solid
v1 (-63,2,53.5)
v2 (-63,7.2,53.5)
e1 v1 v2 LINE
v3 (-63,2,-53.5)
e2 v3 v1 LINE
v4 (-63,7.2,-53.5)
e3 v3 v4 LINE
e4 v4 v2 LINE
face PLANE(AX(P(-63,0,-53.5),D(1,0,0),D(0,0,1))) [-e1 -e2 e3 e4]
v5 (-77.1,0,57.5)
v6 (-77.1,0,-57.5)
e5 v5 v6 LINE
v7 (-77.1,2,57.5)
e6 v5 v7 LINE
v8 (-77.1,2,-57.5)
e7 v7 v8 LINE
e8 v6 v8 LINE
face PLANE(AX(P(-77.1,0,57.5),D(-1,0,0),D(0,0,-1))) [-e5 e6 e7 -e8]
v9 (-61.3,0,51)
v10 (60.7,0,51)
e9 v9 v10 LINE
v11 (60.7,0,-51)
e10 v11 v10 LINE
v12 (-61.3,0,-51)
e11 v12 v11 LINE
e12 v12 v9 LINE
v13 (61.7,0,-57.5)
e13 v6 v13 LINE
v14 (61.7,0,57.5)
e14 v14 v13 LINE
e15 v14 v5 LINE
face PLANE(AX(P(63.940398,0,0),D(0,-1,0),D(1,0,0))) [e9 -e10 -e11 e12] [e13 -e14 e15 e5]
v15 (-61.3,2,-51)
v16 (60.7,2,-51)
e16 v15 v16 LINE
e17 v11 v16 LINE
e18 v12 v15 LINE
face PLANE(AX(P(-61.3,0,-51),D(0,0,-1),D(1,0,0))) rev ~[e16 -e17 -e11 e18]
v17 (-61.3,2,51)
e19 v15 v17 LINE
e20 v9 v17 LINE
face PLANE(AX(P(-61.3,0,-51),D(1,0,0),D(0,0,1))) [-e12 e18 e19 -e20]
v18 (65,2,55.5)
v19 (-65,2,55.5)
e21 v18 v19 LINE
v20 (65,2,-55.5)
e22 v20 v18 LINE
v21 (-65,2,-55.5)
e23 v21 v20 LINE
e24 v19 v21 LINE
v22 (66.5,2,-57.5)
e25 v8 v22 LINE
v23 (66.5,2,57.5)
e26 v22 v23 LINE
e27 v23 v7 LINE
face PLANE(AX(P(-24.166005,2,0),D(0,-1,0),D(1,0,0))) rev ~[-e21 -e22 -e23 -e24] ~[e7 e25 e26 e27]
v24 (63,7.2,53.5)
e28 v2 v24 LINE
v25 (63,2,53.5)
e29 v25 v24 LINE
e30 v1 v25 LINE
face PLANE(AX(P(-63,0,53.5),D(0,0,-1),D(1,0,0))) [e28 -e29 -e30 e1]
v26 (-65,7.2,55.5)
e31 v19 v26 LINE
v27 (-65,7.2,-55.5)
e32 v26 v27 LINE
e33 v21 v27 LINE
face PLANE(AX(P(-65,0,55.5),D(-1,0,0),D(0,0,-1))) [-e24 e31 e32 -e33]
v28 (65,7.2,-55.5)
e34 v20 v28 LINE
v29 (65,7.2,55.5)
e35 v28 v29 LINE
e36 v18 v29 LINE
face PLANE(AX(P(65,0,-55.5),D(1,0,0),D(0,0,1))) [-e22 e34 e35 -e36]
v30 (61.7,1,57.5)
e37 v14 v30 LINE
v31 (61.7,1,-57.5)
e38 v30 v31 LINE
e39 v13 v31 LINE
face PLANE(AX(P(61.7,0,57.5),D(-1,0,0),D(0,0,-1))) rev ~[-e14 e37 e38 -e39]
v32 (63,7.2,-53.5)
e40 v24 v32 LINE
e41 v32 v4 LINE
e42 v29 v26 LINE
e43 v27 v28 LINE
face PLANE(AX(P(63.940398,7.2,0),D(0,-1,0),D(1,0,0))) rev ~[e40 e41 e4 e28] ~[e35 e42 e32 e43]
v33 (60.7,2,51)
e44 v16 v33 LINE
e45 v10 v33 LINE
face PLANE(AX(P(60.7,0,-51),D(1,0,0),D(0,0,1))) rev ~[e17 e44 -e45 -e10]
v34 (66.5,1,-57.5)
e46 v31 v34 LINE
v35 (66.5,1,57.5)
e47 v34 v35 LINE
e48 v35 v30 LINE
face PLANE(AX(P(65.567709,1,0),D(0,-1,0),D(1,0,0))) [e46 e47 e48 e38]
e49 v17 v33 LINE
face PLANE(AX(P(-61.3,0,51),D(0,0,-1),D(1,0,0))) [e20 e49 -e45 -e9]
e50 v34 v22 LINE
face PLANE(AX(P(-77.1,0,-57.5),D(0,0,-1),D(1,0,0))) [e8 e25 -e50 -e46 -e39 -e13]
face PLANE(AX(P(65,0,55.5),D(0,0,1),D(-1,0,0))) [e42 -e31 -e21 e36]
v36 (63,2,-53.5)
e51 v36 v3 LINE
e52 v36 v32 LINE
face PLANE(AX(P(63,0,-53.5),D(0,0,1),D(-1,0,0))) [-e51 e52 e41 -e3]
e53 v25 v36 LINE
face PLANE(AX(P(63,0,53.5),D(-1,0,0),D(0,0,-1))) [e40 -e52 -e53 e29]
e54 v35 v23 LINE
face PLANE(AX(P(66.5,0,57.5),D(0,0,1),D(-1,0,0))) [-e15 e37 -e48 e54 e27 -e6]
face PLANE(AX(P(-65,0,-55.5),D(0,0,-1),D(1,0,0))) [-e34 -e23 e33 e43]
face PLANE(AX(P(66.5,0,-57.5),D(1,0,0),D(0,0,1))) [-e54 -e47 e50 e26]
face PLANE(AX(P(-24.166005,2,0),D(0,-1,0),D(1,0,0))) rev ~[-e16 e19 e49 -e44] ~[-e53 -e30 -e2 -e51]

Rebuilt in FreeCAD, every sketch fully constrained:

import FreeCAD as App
import Part
import Sketcher

V = App.Vector

doc = App.newDocument("Part")
body = doc.addObject("PartDesign::Body", "Body")

sketch1 = body.newObject("Sketcher::SketchObject", "Sketch")
sketch1.AttachmentSupport = (doc.getObject("XZ_Plane"), [""])
sketch1.MapMode = "FlatFace"
sketch1.addGeometry(Part.LineSegment(V(-77, -58, 0), V(66, -58, 0)), False)
sketch1.addGeometry(Part.LineSegment(V(66, -58, 0), V(66, 58, 0)), False)
sketch1.addGeometry(Part.LineSegment(V(66, 58, 0), V(-77, 58, 0)), False)
sketch1.addGeometry(Part.LineSegment(V(-77, 58, 0), V(-77, -58, 0)), False)
sketch1.addGeometry(Part.LineSegment(V(61, -51, 0), V(-61, -51, 0)), False)
sketch1.addGeometry(Part.LineSegment(V(-61, -51, 0), V(-61, 51, 0)), False)
sketch1.addGeometry(Part.LineSegment(V(-61, 51, 0), V(61, 51, 0)), False)
sketch1.addGeometry(Part.LineSegment(V(61, 51, 0), V(61, -51, 0)), False)
sketch1.addConstraint(Sketcher.Constraint("Coincident", 0, 2, 1, 1))
sketch1.addConstraint(Sketcher.Constraint("Coincident", 1, 2, 2, 1))
sketch1.addConstraint(Sketcher.Constraint("Coincident", 2, 2, 3, 1))
sketch1.addConstraint(Sketcher.Constraint("Coincident", 3, 2, 0, 1))
sketch1.addConstraint(Sketcher.Constraint("Coincident", 4, 2, 5, 1))
sketch1.addConstraint(Sketcher.Constraint("Coincident", 5, 2, 6, 1))
sketch1.addConstraint(Sketcher.Constraint("Coincident", 6, 2, 7, 1))
sketch1.addConstraint(Sketcher.Constraint("Coincident", 7, 2, 4, 1))
sketch1.addConstraint(Sketcher.Constraint("Horizontal", 0))
sketch1.addConstraint(Sketcher.Constraint("Vertical", 1))
sketch1.addConstraint(Sketcher.Constraint("Horizontal", 2))
sketch1.addConstraint(Sketcher.Constraint("Vertical", 3))
sketch1.addConstraint(Sketcher.Constraint("Horizontal", 4))
sketch1.addConstraint(Sketcher.Constraint("Vertical", 5))
sketch1.addConstraint(Sketcher.Constraint("Horizontal", 6))
sketch1.addConstraint(Sketcher.Constraint("Vertical", 7))
sketch1.addConstraint(Sketcher.Constraint("DistanceX", 4, 2, 4, 1, 122.0))
sketch1.addConstraint(Sketcher.Constraint("DistanceY", 1, 1, 1, 2, 115.0))
sketch1.addConstraint(Sketcher.Constraint("DistanceY", 5, 1, 5, 2, 102.0))
sketch1.addConstraint(Sketcher.Constraint("DistanceX", 0, 1, 0, 2, 143.6))
sketch1.addConstraint(Sketcher.Constraint("DistanceY", 4, 2, -1, 1, 51.0))
sketch1.addConstraint(Sketcher.Constraint("DistanceX", -1, 1, 0, 2, 66.5))
sketch1.addConstraint(Sketcher.Constraint("DistanceY", 0, 2, -1, 1, 57.5))
sketch1.addConstraint(Sketcher.Constraint("DistanceX", 4, 2, -1, 1, 61.3))
pad1 = body.newObject("PartDesign::Pad", "Pad")
pad1.Profile = sketch1
pad1.Length = 2
pad1.Reversed = True

sketch2 = body.newObject("Sketcher::SketchObject", "Sketch001")
sketch2.AttachmentSupport = (doc.getObject("XZ_Plane"), [""])
sketch2.MapMode = "FlatFace"
sketch2.addGeometry(Part.LineSegment(V(65, -56, 0), V(65, 56, 0)), False)
sketch2.addGeometry(Part.LineSegment(V(65, 56, 0), V(-65, 56, 0)), False)
sketch2.addGeometry(Part.LineSegment(V(-65, 56, 0), V(-65, -56, 0)), False)
sketch2.addGeometry(Part.LineSegment(V(-65, -56, 0), V(65, -56, 0)), False)
sketch2.addGeometry(Part.LineSegment(V(63, 54, 0), V(63, -54, 0)), False)
sketch2.addGeometry(Part.LineSegment(V(63, -54, 0), V(-63, -54, 0)), False)
sketch2.addGeometry(Part.LineSegment(V(-63, -54, 0), V(-63, 54, 0)), False)
sketch2.addGeometry(Part.LineSegment(V(-63, 54, 0), V(63, 54, 0)), False)
sketch2.addConstraint(Sketcher.Constraint("Coincident", 0, 2, 1, 1))
sketch2.addConstraint(Sketcher.Constraint("Coincident", 1, 2, 2, 1))
sketch2.addConstraint(Sketcher.Constraint("Coincident", 2, 2, 3, 1))
sketch2.addConstraint(Sketcher.Constraint("Coincident", 3, 2, 0, 1))
sketch2.addConstraint(Sketcher.Constraint("Coincident", 4, 2, 5, 1))
sketch2.addConstraint(Sketcher.Constraint("Coincident", 5, 2, 6, 1))
sketch2.addConstraint(Sketcher.Constraint("Coincident", 6, 2, 7, 1))
sketch2.addConstraint(Sketcher.Constraint("Coincident", 7, 2, 4, 1))
sketch2.addConstraint(Sketcher.Constraint("Vertical", 0))
sketch2.addConstraint(Sketcher.Constraint("Horizontal", 1))
sketch2.addConstraint(Sketcher.Constraint("Vertical", 2))
sketch2.addConstraint(Sketcher.Constraint("Horizontal", 3))
sketch2.addConstraint(Sketcher.Constraint("Vertical", 4))
sketch2.addConstraint(Sketcher.Constraint("Horizontal", 5))
sketch2.addConstraint(Sketcher.Constraint("Vertical", 6))
sketch2.addConstraint(Sketcher.Constraint("Horizontal", 7))
sketch2.addConstraint(Sketcher.Constraint("Symmetric", 0, 2, 2, 2, -1, 1))
sketch2.addConstraint(Sketcher.Constraint("Symmetric", 4, 2, 6, 2, -1, 1))
sketch2.addConstraint(Sketcher.Constraint("DistanceX", 1, 2, 1, 1, 130.0))
sketch2.addConstraint(Sketcher.Constraint("DistanceX", 5, 2, 5, 1, 126.0))
sketch2.addConstraint(Sketcher.Constraint("DistanceY", 0, 1, 0, 2, 111.0))
sketch2.addConstraint(Sketcher.Constraint("DistanceY", 4, 2, 4, 1, 107.0))
pad2 = body.newObject("PartDesign::Pad", "Pad001")
pad2.Profile = sketch2
pad2.Length = 7.2
pad2.Reversed = True

sketch3 = body.newObject("Sketcher::SketchObject", "Sketch002")
sketch3.AttachmentSupport = (doc.getObject("XZ_Plane"), [""])
sketch3.MapMode = "FlatFace"
sketch3.addGeometry(Part.LineSegment(V(61.7, -57.5, 0), V(66.5, -57.5, 0)), False)
sketch3.addGeometry(Part.LineSegment(V(66.5, -57.5, 0), V(66.5, 57.5, 0)), False)
sketch3.addGeometry(Part.LineSegment(V(66.5, 57.5, 0), V(61.7, 57.5, 0)), False)
sketch3.addGeometry(Part.LineSegment(V(61.7, 57.5, 0), V(61.7, -57.5, 0)), False)
sketch3.addConstraint(Sketcher.Constraint("Coincident", 0, 2, 1, 1))
sketch3.addConstraint(Sketcher.Constraint("Coincident", 1, 2, 2, 1))
sketch3.addConstraint(Sketcher.Constraint("Coincident", 2, 2, 3, 1))
sketch3.addConstraint(Sketcher.Constraint("Coincident", 3, 2, 0, 1))
sketch3.addConstraint(Sketcher.Constraint("Horizontal", 0))
sketch3.addConstraint(Sketcher.Constraint("Vertical", 1))
sketch3.addConstraint(Sketcher.Constraint("Horizontal", 2))
sketch3.addConstraint(Sketcher.Constraint("Vertical", 3))
sketch3.addConstraint(Sketcher.Constraint("DistanceY", 1, 1, 1, 2, 115.0))
sketch3.addConstraint(Sketcher.Constraint("DistanceX", 0, 1, 0, 2, 4.8))
sketch3.addConstraint(Sketcher.Constraint("DistanceX", -1, 1, 0, 2, 66.5))
sketch3.addConstraint(Sketcher.Constraint("DistanceY", 0, 2, -1, 1, 57.5))
pocket1 = body.newObject("PartDesign::Pocket", "Pocket")
pocket1.Profile = sketch3
pocket1.Type = "TwoLengths"
pocket1.Length = 1
pocket1.Length2 = 2

doc.recompute()
